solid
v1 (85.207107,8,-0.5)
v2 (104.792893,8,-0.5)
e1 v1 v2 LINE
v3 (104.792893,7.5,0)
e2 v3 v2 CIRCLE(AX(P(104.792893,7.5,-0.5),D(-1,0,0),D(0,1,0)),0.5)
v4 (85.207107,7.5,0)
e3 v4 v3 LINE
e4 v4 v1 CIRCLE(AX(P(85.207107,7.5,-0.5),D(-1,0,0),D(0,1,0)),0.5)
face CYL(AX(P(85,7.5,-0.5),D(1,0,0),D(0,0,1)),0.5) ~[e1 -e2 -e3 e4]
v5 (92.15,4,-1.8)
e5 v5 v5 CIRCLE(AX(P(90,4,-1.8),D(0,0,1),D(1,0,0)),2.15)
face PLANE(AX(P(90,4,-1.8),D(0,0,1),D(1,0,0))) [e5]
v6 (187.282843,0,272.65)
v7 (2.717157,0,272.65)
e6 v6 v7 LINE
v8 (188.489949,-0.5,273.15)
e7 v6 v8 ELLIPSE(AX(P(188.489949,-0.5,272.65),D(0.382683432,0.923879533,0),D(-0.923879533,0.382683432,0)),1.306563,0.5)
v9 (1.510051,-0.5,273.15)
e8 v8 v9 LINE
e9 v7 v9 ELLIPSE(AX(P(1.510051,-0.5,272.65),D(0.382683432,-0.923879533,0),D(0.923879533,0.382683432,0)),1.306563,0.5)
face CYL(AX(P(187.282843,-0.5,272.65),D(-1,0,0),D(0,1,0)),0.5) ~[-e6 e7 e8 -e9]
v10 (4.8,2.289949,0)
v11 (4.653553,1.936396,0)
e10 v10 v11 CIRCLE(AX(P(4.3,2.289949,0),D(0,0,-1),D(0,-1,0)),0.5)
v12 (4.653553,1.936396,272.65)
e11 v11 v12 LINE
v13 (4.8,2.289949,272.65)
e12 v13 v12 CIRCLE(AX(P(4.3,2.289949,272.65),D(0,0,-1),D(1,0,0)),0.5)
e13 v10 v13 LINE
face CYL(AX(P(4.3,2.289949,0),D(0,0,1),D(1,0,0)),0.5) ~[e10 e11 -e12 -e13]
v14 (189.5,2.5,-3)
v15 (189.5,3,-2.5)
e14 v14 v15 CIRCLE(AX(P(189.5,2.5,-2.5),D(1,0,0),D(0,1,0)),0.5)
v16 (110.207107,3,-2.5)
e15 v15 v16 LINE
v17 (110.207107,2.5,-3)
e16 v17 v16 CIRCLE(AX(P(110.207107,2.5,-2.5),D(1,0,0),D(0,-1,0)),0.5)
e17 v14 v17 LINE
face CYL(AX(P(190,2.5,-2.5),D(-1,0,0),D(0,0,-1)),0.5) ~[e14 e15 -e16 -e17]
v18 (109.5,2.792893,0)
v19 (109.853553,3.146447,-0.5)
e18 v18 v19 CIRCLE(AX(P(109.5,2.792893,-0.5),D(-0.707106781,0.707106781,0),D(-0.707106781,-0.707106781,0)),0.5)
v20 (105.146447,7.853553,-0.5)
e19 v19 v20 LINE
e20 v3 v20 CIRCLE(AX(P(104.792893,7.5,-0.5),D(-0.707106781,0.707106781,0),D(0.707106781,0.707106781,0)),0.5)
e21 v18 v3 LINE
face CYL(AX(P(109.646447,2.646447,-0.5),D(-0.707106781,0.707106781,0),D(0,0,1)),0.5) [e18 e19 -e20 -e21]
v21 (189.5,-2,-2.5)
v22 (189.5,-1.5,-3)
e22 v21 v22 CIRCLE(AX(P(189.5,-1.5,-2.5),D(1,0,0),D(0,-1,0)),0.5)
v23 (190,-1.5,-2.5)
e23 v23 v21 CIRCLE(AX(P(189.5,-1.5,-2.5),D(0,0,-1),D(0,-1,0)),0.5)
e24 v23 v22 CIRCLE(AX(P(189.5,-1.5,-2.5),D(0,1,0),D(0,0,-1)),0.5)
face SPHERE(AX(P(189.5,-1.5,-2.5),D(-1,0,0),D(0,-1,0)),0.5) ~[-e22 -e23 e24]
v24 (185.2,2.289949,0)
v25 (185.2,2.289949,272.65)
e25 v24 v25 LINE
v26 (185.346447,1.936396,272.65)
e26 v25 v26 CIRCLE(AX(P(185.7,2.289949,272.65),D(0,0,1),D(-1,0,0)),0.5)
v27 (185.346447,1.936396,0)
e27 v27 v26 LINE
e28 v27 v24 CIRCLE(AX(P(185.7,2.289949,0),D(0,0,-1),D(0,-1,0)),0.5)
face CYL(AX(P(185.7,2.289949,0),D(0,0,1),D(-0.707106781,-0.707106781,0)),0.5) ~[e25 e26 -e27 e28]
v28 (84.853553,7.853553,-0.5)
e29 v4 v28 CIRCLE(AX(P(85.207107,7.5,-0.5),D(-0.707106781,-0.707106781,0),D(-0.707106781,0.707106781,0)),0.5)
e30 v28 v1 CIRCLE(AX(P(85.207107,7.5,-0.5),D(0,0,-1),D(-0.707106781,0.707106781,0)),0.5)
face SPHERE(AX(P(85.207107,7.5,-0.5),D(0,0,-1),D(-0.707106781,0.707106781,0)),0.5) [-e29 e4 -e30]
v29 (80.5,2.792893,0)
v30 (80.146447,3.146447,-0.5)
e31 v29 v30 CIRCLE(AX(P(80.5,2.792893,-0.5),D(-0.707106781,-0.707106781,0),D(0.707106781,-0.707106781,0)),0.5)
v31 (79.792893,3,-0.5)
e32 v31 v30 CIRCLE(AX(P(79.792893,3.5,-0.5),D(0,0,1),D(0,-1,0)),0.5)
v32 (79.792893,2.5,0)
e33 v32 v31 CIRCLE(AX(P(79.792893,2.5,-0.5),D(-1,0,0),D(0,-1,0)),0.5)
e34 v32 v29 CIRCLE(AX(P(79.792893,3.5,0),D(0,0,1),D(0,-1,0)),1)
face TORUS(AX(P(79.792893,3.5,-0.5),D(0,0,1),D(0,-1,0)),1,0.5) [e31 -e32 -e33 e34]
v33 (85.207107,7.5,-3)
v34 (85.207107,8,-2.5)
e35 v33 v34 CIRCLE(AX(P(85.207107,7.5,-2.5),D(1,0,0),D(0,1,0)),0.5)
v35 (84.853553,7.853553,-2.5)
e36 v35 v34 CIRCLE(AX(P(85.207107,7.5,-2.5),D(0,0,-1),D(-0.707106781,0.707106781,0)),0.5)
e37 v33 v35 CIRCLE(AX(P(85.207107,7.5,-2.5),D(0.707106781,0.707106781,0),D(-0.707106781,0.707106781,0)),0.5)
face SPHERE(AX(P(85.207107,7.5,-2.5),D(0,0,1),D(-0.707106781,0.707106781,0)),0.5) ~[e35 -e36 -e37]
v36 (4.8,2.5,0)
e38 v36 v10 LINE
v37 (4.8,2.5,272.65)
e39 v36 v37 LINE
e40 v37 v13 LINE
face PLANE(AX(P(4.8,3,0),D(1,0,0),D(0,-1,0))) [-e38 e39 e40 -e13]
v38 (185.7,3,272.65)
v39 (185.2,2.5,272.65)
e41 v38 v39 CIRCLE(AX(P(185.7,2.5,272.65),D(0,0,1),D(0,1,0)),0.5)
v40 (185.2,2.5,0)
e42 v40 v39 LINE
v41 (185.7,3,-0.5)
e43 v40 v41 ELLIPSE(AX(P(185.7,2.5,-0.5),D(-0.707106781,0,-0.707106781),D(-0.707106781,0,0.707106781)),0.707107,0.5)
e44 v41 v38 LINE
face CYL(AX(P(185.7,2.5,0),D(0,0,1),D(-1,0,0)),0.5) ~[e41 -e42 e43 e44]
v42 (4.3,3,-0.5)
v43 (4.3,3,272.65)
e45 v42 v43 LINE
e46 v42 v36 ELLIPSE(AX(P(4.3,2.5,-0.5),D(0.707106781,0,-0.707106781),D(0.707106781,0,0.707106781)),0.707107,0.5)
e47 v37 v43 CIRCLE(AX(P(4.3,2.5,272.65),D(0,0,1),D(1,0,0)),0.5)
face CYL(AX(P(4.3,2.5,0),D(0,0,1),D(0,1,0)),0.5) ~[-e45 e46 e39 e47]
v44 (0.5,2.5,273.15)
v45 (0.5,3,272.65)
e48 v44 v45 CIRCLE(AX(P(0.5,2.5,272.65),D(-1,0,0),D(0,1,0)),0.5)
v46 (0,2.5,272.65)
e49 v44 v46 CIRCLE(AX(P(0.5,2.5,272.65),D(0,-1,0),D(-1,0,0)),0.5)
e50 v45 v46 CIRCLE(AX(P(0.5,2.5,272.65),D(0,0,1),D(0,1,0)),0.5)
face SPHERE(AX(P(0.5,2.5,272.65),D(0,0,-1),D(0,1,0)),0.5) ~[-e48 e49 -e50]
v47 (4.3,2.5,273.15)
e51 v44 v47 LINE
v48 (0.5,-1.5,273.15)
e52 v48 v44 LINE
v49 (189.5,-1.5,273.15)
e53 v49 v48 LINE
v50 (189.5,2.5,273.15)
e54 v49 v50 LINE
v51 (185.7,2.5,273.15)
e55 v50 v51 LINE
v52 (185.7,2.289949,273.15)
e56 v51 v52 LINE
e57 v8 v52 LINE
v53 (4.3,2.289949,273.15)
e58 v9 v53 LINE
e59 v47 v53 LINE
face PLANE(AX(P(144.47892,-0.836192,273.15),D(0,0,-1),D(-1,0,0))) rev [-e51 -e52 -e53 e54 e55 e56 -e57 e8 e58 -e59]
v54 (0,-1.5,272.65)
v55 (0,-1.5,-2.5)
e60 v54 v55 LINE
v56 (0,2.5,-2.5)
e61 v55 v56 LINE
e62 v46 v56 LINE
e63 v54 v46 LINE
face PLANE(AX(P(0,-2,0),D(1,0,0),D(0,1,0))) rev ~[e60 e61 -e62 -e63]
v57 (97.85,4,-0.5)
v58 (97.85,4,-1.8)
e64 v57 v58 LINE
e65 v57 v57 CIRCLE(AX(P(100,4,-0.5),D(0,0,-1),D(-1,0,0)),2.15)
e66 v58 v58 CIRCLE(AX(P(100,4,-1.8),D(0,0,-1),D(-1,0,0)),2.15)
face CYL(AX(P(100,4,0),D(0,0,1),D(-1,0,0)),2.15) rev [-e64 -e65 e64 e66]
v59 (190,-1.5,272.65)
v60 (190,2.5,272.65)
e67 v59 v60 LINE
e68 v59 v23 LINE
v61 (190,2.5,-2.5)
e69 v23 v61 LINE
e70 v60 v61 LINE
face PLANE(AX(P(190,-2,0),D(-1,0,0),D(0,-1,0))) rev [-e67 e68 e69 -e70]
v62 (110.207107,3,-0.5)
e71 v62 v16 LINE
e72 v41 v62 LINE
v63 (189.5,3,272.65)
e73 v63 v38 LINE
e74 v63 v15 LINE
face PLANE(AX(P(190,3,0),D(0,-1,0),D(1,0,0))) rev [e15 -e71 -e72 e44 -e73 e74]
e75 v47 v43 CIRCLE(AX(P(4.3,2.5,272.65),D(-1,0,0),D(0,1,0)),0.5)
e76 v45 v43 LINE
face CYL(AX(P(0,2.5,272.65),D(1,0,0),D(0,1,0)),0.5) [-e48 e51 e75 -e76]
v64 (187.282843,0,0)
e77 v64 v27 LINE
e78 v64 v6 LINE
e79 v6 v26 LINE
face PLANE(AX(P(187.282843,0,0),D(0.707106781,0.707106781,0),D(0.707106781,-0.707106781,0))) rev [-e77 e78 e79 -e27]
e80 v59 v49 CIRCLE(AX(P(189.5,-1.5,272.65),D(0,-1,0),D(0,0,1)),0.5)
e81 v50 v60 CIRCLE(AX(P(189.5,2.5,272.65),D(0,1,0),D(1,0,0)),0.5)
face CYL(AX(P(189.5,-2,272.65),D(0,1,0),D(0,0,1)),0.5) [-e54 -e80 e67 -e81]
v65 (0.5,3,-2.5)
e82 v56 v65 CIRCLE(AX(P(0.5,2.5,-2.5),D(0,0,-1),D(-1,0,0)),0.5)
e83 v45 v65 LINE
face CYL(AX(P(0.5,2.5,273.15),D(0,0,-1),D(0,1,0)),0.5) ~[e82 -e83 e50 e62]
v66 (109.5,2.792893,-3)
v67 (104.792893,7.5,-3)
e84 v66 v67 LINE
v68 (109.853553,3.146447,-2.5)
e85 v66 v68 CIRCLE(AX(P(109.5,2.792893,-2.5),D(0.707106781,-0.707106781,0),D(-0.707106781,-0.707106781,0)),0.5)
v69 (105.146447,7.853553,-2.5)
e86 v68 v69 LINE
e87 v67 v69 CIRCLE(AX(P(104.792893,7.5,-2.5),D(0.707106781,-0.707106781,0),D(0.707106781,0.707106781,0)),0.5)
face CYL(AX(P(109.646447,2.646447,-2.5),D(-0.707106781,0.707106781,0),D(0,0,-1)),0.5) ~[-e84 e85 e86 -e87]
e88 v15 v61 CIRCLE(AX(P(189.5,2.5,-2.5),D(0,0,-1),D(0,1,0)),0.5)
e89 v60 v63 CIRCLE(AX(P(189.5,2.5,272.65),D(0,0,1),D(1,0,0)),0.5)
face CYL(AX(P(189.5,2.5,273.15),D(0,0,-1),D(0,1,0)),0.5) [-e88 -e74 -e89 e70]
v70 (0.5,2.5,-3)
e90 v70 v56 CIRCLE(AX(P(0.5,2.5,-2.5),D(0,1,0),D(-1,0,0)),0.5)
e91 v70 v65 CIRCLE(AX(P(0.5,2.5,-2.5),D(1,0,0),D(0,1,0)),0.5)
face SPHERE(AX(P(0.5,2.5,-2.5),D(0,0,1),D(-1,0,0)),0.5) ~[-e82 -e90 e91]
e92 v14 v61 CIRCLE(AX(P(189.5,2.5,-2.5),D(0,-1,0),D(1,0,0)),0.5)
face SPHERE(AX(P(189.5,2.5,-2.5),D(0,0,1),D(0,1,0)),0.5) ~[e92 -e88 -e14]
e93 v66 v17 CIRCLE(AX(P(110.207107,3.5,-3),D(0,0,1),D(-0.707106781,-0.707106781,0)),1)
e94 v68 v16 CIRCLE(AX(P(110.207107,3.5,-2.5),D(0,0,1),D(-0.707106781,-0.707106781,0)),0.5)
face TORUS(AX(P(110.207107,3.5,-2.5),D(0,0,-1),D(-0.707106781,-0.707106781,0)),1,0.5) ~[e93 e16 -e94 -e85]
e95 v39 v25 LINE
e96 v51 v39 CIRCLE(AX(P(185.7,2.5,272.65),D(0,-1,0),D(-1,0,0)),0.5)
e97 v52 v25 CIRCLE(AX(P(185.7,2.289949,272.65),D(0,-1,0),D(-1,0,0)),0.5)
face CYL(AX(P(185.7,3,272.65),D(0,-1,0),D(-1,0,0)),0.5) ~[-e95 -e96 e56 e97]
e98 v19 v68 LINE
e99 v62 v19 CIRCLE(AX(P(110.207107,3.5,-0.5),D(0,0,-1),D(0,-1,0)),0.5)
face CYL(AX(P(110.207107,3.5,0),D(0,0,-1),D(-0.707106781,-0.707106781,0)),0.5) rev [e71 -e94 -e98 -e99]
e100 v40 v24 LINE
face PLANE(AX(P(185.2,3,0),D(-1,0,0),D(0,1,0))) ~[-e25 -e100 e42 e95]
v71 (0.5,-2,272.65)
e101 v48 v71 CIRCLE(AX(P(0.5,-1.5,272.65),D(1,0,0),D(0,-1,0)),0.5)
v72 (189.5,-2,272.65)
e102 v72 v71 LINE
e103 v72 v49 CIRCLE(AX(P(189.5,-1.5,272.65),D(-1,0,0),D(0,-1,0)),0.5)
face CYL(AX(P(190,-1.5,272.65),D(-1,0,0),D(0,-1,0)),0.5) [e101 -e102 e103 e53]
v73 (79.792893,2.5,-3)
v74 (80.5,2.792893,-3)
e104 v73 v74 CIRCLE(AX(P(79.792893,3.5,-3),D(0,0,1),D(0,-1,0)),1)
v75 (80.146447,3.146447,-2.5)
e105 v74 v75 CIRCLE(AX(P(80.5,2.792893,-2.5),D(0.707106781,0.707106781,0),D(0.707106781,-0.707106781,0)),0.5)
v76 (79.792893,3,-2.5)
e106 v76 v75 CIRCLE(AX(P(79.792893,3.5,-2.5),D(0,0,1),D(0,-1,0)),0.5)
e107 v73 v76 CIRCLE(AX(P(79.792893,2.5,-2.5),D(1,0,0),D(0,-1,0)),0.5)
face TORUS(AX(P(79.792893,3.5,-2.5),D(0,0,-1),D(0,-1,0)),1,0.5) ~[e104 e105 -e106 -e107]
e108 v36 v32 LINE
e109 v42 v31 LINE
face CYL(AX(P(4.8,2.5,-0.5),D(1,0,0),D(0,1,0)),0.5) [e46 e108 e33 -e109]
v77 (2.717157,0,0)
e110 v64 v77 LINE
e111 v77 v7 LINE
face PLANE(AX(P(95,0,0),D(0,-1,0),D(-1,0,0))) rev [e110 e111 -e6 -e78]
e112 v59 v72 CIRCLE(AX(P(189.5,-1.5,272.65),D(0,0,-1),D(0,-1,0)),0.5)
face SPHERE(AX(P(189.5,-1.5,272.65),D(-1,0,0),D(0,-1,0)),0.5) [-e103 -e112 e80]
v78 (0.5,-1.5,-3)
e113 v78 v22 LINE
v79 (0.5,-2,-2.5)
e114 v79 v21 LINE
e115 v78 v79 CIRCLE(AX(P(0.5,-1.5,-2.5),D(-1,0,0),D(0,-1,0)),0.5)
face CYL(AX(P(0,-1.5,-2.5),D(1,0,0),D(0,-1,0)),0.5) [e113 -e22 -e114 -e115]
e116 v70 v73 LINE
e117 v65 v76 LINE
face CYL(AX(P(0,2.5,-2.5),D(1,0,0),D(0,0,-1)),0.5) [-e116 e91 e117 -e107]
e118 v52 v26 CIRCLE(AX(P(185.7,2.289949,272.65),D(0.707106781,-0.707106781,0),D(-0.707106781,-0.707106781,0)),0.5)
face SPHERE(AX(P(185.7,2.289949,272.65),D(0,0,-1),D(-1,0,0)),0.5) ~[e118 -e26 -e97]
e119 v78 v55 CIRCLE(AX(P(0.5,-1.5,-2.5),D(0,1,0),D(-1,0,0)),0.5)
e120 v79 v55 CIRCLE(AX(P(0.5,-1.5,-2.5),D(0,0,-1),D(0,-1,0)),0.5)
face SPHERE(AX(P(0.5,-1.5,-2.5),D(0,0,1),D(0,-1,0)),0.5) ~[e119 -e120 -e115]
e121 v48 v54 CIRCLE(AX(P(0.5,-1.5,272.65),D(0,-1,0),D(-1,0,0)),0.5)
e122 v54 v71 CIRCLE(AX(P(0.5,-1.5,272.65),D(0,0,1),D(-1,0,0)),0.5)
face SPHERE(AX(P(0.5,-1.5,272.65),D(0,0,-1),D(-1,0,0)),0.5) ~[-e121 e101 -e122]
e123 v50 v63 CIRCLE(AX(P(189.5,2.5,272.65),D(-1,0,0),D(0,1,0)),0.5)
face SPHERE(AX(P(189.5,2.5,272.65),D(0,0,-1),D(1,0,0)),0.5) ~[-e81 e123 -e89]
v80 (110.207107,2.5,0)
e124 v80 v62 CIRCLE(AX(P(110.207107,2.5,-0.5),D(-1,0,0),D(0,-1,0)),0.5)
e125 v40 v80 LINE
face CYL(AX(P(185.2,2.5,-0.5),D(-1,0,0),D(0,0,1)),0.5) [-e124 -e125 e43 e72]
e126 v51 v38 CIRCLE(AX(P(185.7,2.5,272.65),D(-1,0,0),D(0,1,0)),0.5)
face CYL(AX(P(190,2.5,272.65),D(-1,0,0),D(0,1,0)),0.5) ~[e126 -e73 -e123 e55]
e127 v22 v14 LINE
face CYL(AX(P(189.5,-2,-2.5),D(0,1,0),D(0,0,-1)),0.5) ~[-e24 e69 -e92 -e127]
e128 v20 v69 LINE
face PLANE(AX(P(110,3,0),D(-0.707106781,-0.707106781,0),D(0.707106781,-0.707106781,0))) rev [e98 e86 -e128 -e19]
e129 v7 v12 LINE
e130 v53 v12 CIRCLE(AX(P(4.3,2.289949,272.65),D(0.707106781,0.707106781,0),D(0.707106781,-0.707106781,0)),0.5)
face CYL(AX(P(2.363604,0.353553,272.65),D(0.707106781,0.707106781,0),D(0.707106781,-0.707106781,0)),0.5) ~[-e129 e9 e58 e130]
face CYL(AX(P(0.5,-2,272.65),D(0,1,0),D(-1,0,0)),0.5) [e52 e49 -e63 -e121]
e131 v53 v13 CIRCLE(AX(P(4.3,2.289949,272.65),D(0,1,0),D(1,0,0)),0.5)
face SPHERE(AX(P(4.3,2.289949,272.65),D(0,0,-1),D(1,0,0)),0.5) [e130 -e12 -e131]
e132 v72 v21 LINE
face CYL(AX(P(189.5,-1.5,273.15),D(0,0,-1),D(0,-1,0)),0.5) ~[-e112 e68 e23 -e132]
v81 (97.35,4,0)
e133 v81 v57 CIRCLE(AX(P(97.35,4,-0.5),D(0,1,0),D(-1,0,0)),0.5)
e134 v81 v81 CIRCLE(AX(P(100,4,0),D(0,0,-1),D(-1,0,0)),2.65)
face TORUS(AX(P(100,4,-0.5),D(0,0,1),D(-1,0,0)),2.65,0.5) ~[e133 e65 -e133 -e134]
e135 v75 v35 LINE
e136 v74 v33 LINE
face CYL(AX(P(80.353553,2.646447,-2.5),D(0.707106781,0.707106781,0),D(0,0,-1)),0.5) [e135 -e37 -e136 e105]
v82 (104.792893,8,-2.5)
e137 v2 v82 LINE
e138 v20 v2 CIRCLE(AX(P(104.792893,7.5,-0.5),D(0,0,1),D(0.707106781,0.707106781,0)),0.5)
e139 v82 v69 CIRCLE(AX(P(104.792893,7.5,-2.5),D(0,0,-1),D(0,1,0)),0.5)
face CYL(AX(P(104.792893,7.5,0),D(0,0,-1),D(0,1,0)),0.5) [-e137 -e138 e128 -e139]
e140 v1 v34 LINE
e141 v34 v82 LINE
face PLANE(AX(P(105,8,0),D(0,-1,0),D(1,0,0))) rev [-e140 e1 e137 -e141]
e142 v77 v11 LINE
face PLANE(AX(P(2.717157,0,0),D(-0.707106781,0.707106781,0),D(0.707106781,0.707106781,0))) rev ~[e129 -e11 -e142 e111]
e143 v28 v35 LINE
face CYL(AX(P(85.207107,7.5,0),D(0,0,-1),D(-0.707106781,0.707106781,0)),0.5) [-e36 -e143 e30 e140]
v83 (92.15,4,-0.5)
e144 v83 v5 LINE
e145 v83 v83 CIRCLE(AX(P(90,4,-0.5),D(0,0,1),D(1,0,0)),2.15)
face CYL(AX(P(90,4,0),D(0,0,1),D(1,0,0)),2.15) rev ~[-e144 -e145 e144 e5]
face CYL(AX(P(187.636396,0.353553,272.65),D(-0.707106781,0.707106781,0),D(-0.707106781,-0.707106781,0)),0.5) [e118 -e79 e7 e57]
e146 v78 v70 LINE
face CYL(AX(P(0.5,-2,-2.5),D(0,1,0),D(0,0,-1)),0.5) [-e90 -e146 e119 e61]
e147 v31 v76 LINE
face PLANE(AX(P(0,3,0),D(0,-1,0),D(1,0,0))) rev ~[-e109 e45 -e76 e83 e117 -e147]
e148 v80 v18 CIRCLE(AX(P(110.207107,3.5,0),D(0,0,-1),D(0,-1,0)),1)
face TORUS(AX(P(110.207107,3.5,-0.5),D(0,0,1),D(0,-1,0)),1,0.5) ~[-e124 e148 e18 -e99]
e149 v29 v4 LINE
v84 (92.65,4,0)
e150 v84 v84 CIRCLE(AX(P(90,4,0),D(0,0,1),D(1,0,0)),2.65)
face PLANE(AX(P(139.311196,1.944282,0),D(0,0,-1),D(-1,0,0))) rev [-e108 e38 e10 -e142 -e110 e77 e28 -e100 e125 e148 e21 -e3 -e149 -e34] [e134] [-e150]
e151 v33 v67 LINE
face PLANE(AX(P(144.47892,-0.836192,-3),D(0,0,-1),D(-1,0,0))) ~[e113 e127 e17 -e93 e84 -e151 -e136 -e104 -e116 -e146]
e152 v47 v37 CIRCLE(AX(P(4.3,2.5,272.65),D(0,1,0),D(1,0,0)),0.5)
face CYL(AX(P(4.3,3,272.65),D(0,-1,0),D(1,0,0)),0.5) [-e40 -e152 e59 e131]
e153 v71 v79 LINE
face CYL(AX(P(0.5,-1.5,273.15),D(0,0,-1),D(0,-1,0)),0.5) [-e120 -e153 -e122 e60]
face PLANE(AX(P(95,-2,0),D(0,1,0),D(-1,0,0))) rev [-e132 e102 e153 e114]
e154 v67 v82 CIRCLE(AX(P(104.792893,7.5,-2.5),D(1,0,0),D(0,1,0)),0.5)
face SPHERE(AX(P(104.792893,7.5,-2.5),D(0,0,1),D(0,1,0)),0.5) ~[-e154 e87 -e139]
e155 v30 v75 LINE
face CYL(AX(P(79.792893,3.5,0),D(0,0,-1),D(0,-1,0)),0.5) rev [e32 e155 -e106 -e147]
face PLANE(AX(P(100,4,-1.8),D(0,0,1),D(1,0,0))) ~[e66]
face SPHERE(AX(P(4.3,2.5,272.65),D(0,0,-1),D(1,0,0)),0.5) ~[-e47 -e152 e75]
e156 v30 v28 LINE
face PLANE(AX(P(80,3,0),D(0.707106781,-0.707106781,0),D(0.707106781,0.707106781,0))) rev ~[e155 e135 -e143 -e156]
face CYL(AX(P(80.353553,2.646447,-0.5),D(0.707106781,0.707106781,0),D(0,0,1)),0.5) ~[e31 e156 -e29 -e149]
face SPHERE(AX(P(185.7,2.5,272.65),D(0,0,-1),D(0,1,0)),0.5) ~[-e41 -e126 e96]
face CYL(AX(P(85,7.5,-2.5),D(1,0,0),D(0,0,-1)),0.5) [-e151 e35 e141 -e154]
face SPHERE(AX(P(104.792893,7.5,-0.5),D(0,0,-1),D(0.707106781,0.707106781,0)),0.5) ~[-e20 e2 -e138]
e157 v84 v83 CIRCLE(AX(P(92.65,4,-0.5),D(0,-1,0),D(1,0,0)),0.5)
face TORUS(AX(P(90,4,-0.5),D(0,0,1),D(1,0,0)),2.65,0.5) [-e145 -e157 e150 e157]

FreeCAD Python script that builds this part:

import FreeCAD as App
import Part
import Sketcher

V = App.Vector
Q = App.Units.Quantity


def edges_at(feature, points):
    """Names of the edges that pass closest to the given points."""
    edges = feature.Shape.Edges
    near = lambda p: min(range(len(edges)), key=lambda i: edges[i].distToShape(Part.Vertex(*p))[0])
    return sorted({f"Edge{near(p) + 1}" for p in points})


def add_polygon(sketch, points):
    """Adds a closed chain of lines whose ends are joined by coincident constraints."""
    first, n = sketch.GeometryCount, len(points)
    for a, b in zip(points, points[1:] + points[:1]):
        sketch.addGeometry(Part.LineSegment(App.Vector(*a, 0), App.Vector(*b, 0)), False)
    for i in range(n):
        sketch.addConstraint(Sketcher.Constraint("Coincident", first + i, 2, first + (i + 1) % n, 1))

doc = App.newDocument("Part")
body = doc.addObject("PartDesign::Body", "Body")

# Sketch on XY plane
sketch1 = body.newObject("Sketcher::SketchObject", "Sketch")
sketch1.AttachmentSupport = (doc.getObject("XY_Plane"), [""])
sketch1.MapMode = "FlatFace"
add_polygon(sketch1, [(95, 0), (2.7, 0), (4.8, 2.1), (4.8, 3), (0, 3), (0, -2), (95, -2)])  # lines 0-6
sketch1.addConstraint([
    Sketcher.Constraint("Horizontal", 0),
    Sketcher.Constraint("Vertical", 2),
    Sketcher.Constraint("Horizontal", 3),
    Sketcher.Constraint("Vertical", 4),
    Sketcher.Constraint("Horizontal", 5),
    Sketcher.Constraint("Vertical", 6),
    Sketcher.Constraint("PointOnObject", 0, 2, -1),
    Sketcher.Constraint("PointOnObject", 3, 2, -2),
    Sketcher.Constraint("DistanceX", 5, 1, 5, 2, Q("95 mm")),
    Sketcher.Constraint("DistanceY", 4, 2, 4, 1, Q("5 mm")),
    Sketcher.Constraint("DistanceY", 6, 1, 6, 2, Q("2 mm")),
    Sketcher.Constraint("Angle", 1, Q("45 deg")),
    Sketcher.Constraint("DistanceX", 3, 2, 3, 1, Q("4.8 mm")),
    Sketcher.Constraint("DistanceX", 0, 2, 0, 1, Q("92.282843 mm")),
])
pad1 = body.newObject("PartDesign::Pad", "Pad")
pad1.Profile = sketch1
pad1.Length = 273.15

# Sketch on XY plane
sketch2 = body.newObject("Sketcher::SketchObject", "Sketch001")
sketch2.AttachmentSupport = (doc.getObject("XY_Plane"), [""])
sketch2.MapMode = "FlatFace"
add_polygon(sketch2, [(95, -2), (95, 8), (85, 8), (80, 3), (0, 3), (0, -2)])  # lines 0-5
sketch2.addConstraint([
    Sketcher.Constraint("Vertical", 0),
    Sketcher.Constraint("Horizontal", 1),
    Sketcher.Constraint("Horizontal", 3),
    Sketcher.Constraint("Vertical", 4),
    Sketcher.Constraint("Horizontal", 5),
    Sketcher.Constraint("PointOnObject", 3, 2, -2),
    Sketcher.Constraint("Equal", 1, 0),
    Sketcher.Constraint("DistanceX", 1, 2, 1, 1, Q("10 mm")),
    Sketcher.Constraint("DistanceX", 3, 2, 3, 1, Q("80 mm")),
    Sketcher.Constraint("DistanceX", 5, 1, 5, 2, Q("95 mm")),
    Sketcher.Constraint("DistanceY", 4, 2, 4, 1, Q("5 mm")),
    Sketcher.Constraint("DistanceY", -1, 1, 0, 2, Q("8 mm")),
])
pad2 = body.newObject("PartDesign::Pad", "Pad001")
pad2.Profile = sketch2
pad2.Length = 3
pad2.Reversed = True

# Sketch on XY plane
sketch3 = body.newObject("Sketcher::SketchObject", "Sketch002")
sketch3.AttachmentSupport = (doc.getObject("XY_Plane"), [""])
sketch3.MapMode = "FlatFace"
sketch3.addGeometry(Part.Circle(V(90, 4, 0), V(0, 0, 1), 2.1), False)
sketch3.addConstraint([
    Sketcher.Constraint("Diameter", 0, Q("4.3 mm")),
    Sketcher.Constraint("DistanceX", -1, 1, 0, 3, Q("90 mm")),
    Sketcher.Constraint("DistanceY", -1, 1, 0, 3, Q("4 mm")),
])
pocket1 = body.newObject("PartDesign::Pocket", "Pocket")
pocket1.Profile = sketch3
pocket1.Length = 1.8
body2 = doc.addObject("PartDesign::Body", "Body001")
doc.recompute()

body2.BaseFeature = body
doc.recompute()

mirroring = doc.addObject("Part::Mirroring", "Mirroring")
mirroring.Source = body
mirroring.Base = V(95, 0, 273.15)
mirroring.Normal = V(-1, 0, 0)
body3 = doc.addObject("PartDesign::Body", "Body002")
body3.BaseFeature = mirroring
boolean = body2.newObject("PartDesign::Boolean", "Boolean")
boolean.Type = "Fuse"
boolean.addObjects([body3])
doc.recompute()

fillet = body2.newObject("PartDesign::Fillet", "Fillet")
fillet.Base = (boolean, edges_at(boolean, [
    (3.759, 1.041, 273.15),
    (0, -2, 135.075),
    (0, 3, 135.075),
    (4.8, 3, 136.575),
    (4.8, 2.083, 136.575),
    (4.8, 2.541, 273.15),
    (2.4, 3, 273.15),
    (42.4, 3, 0),
    (0, 0.5, 273.15),
    (82.5, 5.5, 0),
    (80, 3, -1.5),
    (95, 8, 0),
    (85, 8, -1.5),
    (95, -2, -3),
    (0, 0.5, -3),
    (40, 3, -3),
    (82.5, 5.5, -3),
    (95, 8, -3),
    (95, -2, 273.15),
    (87.85, 4, 0),
    (185.2, 2.083, 136.575),
    (185.2, 3, 136.575),
    (190, 3, 135.075),
    (150, 3, -3),
    (110, 3, -1.5),
    (190, -2, 135.075),
    (190, 0.5, -3),
    (95, 0, 273.15),
    (190, 0.5, 273.15),
    (187.6, 3, 273.15),
    (185.2, 2.541, 273.15),
    (186.241, 1.041, 273.15),
    (107.5, 5.5, -3),
    (105, 8, -1.5),
    (102.15, 4, 0),
    (147.6, 3, 0),
    (107.5, 5.5, 0),
]))
fillet.Radius = 0.5
mirroring.Visibility = False

doc.recompute()
